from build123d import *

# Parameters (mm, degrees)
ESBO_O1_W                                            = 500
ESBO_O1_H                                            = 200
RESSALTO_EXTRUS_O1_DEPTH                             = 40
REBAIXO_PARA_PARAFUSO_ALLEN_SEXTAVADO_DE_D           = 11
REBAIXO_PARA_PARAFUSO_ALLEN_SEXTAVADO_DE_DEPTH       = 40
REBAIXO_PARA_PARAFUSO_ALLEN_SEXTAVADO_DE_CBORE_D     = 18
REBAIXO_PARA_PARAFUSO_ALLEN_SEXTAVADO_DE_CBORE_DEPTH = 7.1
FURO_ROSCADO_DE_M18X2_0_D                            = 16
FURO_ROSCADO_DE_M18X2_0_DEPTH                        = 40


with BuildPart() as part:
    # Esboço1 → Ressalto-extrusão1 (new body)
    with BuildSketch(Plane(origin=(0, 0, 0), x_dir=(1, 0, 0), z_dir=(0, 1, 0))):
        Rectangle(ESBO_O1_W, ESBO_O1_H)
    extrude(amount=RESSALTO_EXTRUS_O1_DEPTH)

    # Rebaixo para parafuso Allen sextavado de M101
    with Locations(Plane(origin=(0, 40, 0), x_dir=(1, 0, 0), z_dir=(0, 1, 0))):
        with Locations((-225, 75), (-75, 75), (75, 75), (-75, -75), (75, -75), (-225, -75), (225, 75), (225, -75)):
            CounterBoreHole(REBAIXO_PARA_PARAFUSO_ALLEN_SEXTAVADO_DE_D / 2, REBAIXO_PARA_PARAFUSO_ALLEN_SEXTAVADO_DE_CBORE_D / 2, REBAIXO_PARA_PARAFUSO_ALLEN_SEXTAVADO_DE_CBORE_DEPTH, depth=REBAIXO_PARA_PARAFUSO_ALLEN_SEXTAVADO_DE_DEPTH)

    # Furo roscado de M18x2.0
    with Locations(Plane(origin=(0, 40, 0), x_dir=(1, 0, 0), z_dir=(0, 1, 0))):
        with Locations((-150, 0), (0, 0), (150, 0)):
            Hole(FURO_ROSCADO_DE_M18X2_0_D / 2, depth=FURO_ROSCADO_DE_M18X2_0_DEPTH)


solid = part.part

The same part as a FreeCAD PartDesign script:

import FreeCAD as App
import Part
import Sketcher

V = App.Vector

doc = App.newDocument("Part")
body = doc.addObject("PartDesign::Body", "Body")

sketch1 = body.newObject("Sketcher::SketchObject", "Sketch")
sketch1.AttachmentSupport = (doc.getObject("XZ_Plane"), [""])
sketch1.MapMode = "FlatFace"
sketch1.addGeometry([
    Part.LineSegment(V(-250, -100, 0), V(-250, 100, 0)),
    Part.LineSegment(V(-250, 100, 0), V(250, 100, 0)),
    Part.LineSegment(V(250, 100, 0), V(250, -100, 0)),
    Part.LineSegment(V(250, -100, 0), V(-250, -100, 0)),
], False)
sketch1.addConstraint([
    Sketcher.Constraint("Coincident", 0, 2, 1, 1),
    Sketcher.Constraint("Coincident", 1, 2, 2, 1),
    Sketcher.Constraint("Coincident", 2, 2, 3, 1),
    Sketcher.Constraint("Coincident", 3, 2, 0, 1),
    Sketcher.Constraint("Vertical", 0),
    Sketcher.Constraint("Horizontal", 1),
    Sketcher.Constraint("Vertical", 2),
    Sketcher.Constraint("Horizontal", 3),
    Sketcher.Constraint("Symmetric", 0, 2, 2, 2, -1, 1),
    Sketcher.Constraint("DistanceX", 1, 1, 1, 2, 500.0),
    Sketcher.Constraint("DistanceY", 0, 1, 0, 2, 200.0),
])
pad1 = body.newObject("PartDesign::Pad", "Pad")
pad1.Profile = sketch1
pad1.Length = 40
pad1.Reversed = True

sketch2 = body.newObject("Sketcher::SketchObject", "Sketch001")
sketch2.AttachmentSupport = (doc.getObject("XZ_Plane"), [""])
sketch2.MapMode = "FlatFace"
sketch2.AttachmentOffset = App.Placement(V(0, 0, -40), App.Rotation())
sketch2.addGeometry([
    Part.Circle(V(-225, -75, 0), V(0, 0, 1), 6),
    Part.Circle(V(-75, -75, 0), V(0, 0, 1), 6),
    Part.Circle(V(75, -75, 0), V(0, 0, 1), 6),
    Part.Circle(V(-75, 75, 0), V(0, 0, 1), 6),
    Part.Circle(V(75, 75, 0), V(0, 0, 1), 6),
    Part.Circle(V(-225, 75, 0), V(0, 0, 1), 6),
    Part.Circle(V(225, -75, 0), V(0, 0, 1), 6),
    Part.Circle(V(225, 75, 0), V(0, 0, 1), 6),
], False)
sketch2.addConstraint([
    Sketcher.Constraint("Equal", 0, 1),
    Sketcher.Constraint("Equal", 1, 2),
    Sketcher.Constraint("Equal", 2, 3),
    Sketcher.Constraint("Equal", 3, 4),
    Sketcher.Constraint("Equal", 4, 5),
    Sketcher.Constraint("Equal", 5, 6),
    Sketcher.Constraint("Equal", 6, 7),
    Sketcher.Constraint("Symmetric", 2, 3, 3, 3, -1, 1),
    Sketcher.Constraint("Symmetric", 1, 3, 4, 3, -1, 1),
    Sketcher.Constraint("Symmetric", 5, 3, 6, 3, -1, 1),
    Sketcher.Constraint("Symmetric", 0, 3, 7, 3, -1, 1),
    Sketcher.Constraint("Symmetric", 1, 3, 2, 3, -2),
    Sketcher.Constraint("Symmetric", 0, 3, 6, 3, -2),
    Sketcher.Constraint("Horizontal", 0, 3, 1, 3),
    Sketcher.Constraint("Diameter", 0, 11.0),
    Sketcher.Constraint("DistanceX", 0, 3, -1, 1, 225.0),
    Sketcher.Constraint("DistanceY", 0, 3, -1, 1, 75.0),
    Sketcher.Constraint("DistanceX", 1, 3, -1, 1, 75.0),
])
doc.recompute()
hole = body.newObject("PartDesign::Hole", "Hole")
hole.Profile = sketch2
hole.ThreadType = "None"
hole.Diameter = 11
hole.DepthType = "Dimension"
hole.Depth = 40
hole.DrillPoint = "Flat"
hole.HoleCutType = "Counterbore"
hole.HoleCutDiameter = 18
hole.HoleCutDepth = 7.1
hole.Reversed = True

sketch3 = body.newObject("Sketcher::SketchObject", "Sketch002")
sketch3.AttachmentSupport = (doc.getObject("XZ_Plane"), [""])
sketch3.MapMode = "FlatFace"
sketch3.AttachmentOffset = App.Placement(V(0, 0, -40), App.Rotation())
sketch3.addGeometry([
    Part.Circle(V(-150, 0, 0), V(0, 0, 1), 8),
    Part.Circle(V(0, 0, 0), V(0, 0, 1), 8),
    Part.Circle(V(150, 0, 0), V(0, 0, 1), 8),
], False)
sketch3.addConstraint([
    Sketcher.Constraint("Coincident", 1, 3, -1, 1),
    Sketcher.Constraint("Equal", 0, 1),
    Sketcher.Constraint("Equal", 1, 2),
    Sketcher.Constraint("Symmetric", 0, 3, 2, 3, -1, 1),
    Sketcher.Constraint("PointOnObject", 0, 3, -1),
    Sketcher.Constraint("Diameter", 0, 16.0),
    Sketcher.Constraint("DistanceX", 0, 3, -1, 1, 150.0),
])
doc.recompute()
hole2 = body.newObject("PartDesign::Hole", "Hole001")
hole2.Profile = sketch3
hole2.ThreadType = "None"
hole2.Diameter = 16
hole2.DepthType = "Dimension"
hole2.Depth = 40
hole2.DrillPoint = "Flat"
hole2.Reversed = True

doc.recompute()
